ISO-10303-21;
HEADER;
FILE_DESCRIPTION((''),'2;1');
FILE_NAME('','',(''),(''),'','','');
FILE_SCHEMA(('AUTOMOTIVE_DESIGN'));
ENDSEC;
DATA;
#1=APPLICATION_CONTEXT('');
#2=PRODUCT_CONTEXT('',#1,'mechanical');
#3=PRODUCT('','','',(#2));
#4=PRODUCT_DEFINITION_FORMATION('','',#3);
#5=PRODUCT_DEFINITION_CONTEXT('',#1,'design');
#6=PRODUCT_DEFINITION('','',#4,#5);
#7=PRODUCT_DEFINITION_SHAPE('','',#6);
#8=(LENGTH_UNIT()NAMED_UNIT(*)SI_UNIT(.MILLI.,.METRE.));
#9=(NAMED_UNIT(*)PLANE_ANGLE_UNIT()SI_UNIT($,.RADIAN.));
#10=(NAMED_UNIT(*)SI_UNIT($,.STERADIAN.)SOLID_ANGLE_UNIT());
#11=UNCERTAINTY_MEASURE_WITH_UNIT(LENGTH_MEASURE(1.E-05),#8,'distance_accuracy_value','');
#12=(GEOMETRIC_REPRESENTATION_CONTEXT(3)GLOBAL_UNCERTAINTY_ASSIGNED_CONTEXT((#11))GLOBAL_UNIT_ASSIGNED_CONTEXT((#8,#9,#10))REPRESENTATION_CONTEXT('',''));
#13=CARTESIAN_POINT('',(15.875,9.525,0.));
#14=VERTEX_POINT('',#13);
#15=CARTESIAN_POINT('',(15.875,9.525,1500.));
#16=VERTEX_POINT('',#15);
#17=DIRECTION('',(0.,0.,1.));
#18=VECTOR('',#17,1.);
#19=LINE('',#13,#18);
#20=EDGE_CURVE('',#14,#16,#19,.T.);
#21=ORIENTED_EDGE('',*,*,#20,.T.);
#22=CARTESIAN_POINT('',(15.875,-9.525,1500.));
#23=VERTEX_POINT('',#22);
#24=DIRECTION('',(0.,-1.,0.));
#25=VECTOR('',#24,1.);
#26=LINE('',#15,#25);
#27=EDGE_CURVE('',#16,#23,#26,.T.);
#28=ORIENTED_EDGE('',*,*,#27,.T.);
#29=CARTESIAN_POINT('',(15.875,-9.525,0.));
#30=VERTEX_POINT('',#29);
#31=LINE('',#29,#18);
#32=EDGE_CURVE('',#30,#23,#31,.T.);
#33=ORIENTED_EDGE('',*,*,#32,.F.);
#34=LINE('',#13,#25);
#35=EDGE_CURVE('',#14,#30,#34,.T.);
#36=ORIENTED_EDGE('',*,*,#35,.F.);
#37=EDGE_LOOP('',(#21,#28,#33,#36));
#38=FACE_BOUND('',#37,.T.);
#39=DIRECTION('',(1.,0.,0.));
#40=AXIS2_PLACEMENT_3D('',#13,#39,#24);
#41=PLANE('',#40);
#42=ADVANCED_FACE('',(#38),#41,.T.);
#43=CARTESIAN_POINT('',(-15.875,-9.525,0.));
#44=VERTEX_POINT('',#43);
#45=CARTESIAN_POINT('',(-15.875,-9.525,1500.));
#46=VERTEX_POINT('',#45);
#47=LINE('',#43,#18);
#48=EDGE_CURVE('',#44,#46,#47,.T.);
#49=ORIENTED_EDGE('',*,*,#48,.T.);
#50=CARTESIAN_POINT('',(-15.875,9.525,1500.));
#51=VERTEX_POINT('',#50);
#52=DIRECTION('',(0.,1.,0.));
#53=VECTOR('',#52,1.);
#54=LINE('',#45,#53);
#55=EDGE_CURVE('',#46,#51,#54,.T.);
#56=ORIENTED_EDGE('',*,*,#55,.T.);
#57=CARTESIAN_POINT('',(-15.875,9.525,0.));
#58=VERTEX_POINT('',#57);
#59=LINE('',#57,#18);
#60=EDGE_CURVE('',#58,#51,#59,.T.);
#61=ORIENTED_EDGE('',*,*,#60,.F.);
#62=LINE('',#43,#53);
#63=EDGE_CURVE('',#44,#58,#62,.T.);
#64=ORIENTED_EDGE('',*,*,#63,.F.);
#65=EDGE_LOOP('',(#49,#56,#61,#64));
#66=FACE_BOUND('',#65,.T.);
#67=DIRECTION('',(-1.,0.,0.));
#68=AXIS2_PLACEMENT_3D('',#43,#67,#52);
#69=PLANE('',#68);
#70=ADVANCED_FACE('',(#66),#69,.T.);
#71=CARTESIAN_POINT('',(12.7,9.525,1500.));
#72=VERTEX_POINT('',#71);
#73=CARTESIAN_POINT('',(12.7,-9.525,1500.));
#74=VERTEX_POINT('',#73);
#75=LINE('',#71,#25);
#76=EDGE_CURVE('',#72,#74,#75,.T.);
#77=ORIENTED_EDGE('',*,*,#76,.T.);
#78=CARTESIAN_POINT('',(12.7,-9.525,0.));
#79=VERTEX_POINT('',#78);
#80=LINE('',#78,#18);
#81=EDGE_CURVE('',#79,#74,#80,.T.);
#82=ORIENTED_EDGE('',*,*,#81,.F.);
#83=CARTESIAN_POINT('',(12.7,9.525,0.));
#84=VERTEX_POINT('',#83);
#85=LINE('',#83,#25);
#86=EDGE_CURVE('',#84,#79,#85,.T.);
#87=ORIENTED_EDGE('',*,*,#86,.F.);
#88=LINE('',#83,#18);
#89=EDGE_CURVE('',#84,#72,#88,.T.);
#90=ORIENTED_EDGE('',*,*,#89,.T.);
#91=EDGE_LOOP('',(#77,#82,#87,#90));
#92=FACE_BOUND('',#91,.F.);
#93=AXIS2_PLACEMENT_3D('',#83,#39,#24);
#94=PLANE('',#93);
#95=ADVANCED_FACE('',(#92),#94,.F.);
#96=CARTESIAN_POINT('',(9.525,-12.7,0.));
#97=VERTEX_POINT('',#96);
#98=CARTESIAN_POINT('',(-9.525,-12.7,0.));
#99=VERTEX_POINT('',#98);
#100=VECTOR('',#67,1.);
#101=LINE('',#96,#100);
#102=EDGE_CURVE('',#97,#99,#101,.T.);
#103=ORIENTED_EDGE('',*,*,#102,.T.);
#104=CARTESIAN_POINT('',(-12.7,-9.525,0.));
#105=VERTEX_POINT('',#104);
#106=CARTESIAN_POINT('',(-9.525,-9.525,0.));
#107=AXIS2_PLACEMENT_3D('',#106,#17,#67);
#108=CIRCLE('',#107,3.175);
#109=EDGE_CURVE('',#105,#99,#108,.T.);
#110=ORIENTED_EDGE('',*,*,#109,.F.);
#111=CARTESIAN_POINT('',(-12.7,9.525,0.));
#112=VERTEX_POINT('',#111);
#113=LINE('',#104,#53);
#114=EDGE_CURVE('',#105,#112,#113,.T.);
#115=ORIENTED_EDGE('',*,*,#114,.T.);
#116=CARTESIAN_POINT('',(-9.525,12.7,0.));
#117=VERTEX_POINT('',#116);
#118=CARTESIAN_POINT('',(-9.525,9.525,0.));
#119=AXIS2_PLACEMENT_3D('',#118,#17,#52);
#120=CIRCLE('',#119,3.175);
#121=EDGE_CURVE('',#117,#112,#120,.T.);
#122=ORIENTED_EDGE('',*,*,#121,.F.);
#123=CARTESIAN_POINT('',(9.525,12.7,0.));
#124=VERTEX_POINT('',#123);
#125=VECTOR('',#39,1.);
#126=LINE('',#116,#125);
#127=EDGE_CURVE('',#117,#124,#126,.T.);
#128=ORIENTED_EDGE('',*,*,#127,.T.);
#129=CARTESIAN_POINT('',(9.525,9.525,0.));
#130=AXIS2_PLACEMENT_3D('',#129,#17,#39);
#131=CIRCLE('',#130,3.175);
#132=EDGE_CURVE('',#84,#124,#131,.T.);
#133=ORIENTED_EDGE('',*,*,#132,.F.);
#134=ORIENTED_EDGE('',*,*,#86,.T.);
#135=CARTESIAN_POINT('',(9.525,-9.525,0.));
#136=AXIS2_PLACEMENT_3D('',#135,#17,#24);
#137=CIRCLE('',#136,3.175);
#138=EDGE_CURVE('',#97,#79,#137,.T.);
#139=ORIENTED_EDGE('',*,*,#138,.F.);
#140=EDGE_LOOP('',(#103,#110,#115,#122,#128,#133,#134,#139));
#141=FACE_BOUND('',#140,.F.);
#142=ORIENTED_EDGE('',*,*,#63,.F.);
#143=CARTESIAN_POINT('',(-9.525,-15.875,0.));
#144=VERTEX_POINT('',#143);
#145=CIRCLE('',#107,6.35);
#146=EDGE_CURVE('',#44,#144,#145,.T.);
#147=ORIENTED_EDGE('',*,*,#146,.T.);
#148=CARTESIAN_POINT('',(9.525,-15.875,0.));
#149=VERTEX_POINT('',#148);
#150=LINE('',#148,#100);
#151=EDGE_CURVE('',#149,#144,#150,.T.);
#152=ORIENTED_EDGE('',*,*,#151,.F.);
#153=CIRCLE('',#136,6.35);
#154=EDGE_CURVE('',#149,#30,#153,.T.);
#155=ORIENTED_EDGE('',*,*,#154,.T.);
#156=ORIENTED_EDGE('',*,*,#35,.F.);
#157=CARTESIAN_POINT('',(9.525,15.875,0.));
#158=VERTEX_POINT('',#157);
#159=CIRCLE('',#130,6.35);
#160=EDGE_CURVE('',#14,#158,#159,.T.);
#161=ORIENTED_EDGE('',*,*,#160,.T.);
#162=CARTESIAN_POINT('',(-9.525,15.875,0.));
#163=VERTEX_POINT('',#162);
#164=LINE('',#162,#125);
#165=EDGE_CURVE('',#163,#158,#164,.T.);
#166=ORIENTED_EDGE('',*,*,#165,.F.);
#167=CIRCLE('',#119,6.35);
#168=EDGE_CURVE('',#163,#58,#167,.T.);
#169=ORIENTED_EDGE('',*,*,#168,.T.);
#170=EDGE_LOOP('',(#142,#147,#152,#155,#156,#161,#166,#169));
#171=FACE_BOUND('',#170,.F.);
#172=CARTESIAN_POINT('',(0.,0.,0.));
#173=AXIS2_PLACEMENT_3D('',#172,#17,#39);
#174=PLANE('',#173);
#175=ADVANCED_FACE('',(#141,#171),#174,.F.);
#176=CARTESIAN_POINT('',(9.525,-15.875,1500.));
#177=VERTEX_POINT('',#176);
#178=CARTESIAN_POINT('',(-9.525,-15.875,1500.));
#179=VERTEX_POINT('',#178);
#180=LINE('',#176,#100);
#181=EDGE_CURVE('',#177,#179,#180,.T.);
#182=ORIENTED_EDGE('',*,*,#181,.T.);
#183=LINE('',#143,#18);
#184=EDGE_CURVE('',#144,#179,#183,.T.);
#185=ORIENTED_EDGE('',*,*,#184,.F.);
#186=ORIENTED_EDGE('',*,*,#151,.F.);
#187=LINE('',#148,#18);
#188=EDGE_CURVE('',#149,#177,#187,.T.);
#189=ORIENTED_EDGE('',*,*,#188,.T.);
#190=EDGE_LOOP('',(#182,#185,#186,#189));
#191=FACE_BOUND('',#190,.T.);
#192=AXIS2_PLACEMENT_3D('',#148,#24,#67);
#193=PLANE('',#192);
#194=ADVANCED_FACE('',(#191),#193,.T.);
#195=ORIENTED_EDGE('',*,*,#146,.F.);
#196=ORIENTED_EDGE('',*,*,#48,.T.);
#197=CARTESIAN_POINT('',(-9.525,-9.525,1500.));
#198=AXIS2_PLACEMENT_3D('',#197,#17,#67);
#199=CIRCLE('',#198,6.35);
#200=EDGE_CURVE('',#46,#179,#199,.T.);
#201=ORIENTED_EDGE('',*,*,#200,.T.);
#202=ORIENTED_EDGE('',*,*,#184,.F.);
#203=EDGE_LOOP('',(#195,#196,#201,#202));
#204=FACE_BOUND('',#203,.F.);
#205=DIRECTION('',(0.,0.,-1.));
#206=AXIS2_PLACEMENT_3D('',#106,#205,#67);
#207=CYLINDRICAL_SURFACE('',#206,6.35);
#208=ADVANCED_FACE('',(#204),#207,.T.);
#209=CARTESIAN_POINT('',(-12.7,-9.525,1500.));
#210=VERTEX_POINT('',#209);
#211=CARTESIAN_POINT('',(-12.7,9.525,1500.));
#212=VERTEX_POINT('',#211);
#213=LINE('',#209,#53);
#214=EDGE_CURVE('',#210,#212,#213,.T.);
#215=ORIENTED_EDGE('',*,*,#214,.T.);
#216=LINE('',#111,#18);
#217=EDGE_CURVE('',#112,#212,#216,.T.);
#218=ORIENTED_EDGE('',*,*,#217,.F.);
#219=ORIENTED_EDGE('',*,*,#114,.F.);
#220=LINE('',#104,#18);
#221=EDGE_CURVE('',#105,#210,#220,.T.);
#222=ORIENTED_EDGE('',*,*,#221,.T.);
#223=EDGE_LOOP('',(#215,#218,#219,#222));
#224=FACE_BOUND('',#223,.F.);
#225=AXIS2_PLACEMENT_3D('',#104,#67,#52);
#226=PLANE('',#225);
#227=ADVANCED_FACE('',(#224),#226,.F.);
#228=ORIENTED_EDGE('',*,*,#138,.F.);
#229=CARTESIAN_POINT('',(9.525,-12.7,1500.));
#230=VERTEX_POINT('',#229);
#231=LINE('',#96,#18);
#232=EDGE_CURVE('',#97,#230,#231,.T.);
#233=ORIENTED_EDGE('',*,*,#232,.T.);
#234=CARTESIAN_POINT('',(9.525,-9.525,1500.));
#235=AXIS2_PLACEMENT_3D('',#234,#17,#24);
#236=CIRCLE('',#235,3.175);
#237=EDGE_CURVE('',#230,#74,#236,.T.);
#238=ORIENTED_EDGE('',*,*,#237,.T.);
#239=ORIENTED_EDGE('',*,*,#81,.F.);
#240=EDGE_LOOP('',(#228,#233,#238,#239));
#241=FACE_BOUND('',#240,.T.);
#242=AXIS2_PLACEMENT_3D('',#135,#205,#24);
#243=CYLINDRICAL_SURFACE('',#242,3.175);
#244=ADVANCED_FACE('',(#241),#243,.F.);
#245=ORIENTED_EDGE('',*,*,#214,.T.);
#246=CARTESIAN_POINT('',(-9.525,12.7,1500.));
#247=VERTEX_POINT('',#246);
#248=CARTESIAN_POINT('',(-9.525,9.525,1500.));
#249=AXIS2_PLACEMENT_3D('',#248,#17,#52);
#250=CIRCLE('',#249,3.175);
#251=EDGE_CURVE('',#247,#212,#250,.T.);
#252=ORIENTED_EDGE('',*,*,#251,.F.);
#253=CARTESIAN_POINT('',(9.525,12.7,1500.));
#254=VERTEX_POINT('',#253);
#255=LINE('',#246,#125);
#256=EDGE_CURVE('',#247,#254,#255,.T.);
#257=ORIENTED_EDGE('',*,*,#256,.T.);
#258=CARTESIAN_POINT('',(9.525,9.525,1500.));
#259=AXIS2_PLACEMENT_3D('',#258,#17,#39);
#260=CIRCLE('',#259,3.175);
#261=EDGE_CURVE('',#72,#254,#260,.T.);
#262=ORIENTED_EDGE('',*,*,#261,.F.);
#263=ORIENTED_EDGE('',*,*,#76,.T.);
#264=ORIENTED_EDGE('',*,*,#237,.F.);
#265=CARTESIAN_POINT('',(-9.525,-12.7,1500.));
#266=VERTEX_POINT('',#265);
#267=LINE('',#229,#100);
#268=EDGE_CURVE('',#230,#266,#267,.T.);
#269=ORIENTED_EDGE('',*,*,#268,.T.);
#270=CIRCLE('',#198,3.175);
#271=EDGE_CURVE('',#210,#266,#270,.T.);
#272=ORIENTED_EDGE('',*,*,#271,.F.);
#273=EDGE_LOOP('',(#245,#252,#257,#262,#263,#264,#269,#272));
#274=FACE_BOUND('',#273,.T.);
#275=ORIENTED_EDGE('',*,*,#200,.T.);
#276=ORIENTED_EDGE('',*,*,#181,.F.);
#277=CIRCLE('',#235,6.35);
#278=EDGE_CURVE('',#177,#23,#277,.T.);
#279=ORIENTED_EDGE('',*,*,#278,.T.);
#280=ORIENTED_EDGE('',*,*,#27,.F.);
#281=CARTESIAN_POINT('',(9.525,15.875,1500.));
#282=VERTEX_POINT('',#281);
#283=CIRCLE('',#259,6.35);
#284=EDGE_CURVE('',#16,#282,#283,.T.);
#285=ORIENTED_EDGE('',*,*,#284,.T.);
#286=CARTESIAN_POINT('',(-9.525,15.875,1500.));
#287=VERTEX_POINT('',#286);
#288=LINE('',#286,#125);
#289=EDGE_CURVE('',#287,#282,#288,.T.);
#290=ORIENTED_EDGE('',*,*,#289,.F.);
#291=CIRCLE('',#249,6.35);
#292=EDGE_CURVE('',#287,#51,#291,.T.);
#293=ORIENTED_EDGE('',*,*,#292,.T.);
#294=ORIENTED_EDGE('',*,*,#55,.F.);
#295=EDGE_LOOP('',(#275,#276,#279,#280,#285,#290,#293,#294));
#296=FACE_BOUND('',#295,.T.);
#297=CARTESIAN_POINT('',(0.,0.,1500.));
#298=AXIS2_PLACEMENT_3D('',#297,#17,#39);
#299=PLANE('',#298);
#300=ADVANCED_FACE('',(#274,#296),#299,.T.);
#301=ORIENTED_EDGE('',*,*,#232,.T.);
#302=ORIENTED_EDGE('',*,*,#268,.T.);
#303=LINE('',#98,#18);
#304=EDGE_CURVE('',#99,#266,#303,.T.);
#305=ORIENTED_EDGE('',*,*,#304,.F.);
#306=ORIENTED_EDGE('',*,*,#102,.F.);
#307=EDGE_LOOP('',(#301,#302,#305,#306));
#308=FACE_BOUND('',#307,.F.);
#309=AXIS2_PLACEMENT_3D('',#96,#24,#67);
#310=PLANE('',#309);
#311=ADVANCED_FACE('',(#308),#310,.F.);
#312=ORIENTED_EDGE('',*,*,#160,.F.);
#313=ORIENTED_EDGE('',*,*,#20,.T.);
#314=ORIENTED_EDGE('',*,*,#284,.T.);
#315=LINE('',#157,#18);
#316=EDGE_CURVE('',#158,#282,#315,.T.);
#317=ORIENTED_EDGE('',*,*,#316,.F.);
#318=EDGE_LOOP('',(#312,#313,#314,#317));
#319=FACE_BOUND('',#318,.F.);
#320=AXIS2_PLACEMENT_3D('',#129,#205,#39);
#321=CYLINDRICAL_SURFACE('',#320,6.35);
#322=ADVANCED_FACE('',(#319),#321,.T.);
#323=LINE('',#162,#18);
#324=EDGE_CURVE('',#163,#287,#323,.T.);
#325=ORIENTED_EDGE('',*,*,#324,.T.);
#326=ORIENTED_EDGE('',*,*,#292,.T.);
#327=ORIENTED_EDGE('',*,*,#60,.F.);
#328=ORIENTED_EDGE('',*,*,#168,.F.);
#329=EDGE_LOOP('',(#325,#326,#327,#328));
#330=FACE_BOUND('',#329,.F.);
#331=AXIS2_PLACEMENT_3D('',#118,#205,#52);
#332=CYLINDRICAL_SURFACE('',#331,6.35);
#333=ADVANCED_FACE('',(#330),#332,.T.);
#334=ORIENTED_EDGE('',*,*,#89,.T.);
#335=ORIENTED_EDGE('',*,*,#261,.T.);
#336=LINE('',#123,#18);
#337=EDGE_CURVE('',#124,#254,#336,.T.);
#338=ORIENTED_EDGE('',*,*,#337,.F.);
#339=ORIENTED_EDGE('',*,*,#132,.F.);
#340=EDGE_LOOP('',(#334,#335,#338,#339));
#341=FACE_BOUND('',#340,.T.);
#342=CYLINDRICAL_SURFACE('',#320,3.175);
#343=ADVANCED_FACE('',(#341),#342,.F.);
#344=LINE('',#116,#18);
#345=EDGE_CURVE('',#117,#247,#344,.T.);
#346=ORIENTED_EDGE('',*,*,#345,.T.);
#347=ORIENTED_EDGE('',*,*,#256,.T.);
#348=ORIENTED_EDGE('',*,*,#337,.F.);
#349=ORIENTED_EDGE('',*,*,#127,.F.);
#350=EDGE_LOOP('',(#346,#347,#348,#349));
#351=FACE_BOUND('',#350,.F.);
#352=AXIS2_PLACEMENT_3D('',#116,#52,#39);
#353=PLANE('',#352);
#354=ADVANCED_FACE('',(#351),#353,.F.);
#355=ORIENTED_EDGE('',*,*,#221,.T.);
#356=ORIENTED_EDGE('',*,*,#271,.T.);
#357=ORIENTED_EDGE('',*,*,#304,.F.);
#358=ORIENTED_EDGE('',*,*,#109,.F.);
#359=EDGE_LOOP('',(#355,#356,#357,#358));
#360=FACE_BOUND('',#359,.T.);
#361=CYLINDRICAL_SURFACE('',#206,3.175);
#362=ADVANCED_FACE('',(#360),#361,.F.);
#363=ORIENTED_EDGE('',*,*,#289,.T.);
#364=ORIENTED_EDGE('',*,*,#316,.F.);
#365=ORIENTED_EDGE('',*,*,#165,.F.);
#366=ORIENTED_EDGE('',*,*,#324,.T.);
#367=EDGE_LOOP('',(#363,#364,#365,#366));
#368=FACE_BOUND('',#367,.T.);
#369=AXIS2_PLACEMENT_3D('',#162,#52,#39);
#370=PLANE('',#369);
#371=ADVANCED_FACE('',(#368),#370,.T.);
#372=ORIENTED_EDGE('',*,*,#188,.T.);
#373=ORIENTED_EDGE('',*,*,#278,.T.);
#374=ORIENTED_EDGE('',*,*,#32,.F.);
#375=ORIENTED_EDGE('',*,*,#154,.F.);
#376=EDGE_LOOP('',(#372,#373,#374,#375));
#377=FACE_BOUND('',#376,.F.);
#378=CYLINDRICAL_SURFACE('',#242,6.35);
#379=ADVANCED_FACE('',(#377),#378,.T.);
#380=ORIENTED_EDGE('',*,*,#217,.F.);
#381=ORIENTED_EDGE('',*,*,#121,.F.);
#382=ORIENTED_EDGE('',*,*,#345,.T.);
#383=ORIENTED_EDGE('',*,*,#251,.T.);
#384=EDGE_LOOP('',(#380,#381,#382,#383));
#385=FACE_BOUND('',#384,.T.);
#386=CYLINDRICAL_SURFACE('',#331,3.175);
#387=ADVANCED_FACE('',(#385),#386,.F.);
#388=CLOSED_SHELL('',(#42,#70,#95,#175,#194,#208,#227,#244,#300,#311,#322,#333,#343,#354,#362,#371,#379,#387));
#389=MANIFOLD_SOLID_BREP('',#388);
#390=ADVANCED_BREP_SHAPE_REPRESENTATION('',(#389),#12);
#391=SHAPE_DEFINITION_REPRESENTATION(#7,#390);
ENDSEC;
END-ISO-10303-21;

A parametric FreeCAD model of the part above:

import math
import FreeCAD as App
import Part
import Sketcher
from FreeCAD import Vector
Q = App.Units.Quantity

doc = App.newDocument("Part")
body = doc.addObject("PartDesign::Body", "Body")

# Sketch on XY plane
sketch1 = body.newObject("Sketcher::SketchObject", "Sketch")
sketch1.AttachmentSupport = (doc.getObject("XY_Plane"), [""])
sketch1.MapMode = "FlatFace"
sketch1.addGeometry(Part.LineSegment(Vector(-15.9, 9.5, 0), Vector(-15.9, -9.5, 0)), False)
sketch1.addGeometry(Part.ArcOfCircle(Part.Circle(Vector(-9.5, -9.5, 0), Vector(0, 0, 1), 6.3), math.radians(180), math.radians(270)), False)
sketch1.addGeometry(Part.LineSegment(Vector(-9.5, -15.9, 0), Vector(9.5, -15.9, 0)), False)
sketch1.addGeometry(Part.ArcOfCircle(Part.Circle(Vector(9.5, -9.5, 0), Vector(0, 0, 1), 6.3), math.radians(-90), math.radians(0)), False)
sketch1.addGeometry(Part.LineSegment(Vector(15.9, -9.5, 0), Vector(15.9, 9.5, 0)), False)
sketch1.addGeometry(Part.ArcOfCircle(Part.Circle(Vector(9.5, 9.5, 0), Vector(0, 0, 1), 6.3), math.radians(0), math.radians(90)), False)
sketch1.addGeometry(Part.LineSegment(Vector(9.5, 15.9, 0), Vector(-9.5, 15.9, 0)), False)
sketch1.addGeometry(Part.ArcOfCircle(Part.Circle(Vector(-9.5, 9.5, 0), Vector(0, 0, 1), 6.3), math.radians(90), math.radians(180)), False)
sketch1.addGeometry(Part.ArcOfCircle(Part.Circle(Vector(-9.5, 9.5, 0), Vector(0, 0, 1), 3.2), math.radians(90), math.radians(180)), False)
sketch1.addGeometry(Part.LineSegment(Vector(-9.5, 12.7, 0), Vector(9.5, 12.7, 0)), False)
sketch1.addGeometry(Part.ArcOfCircle(Part.Circle(Vector(9.5, 9.5, 0), Vector(0, 0, 1), 3.2), math.radians(0), math.radians(90)), False)
sketch1.addGeometry(Part.LineSegment(Vector(12.7, 9.5, 0), Vector(12.7, -9.5, 0)), False)
sketch1.addGeometry(Part.ArcOfCircle(Part.Circle(Vector(9.5, -9.5, 0), Vector(0, 0, 1), 3.2), math.radians(-90), math.radians(0)), False)
sketch1.addGeometry(Part.LineSegment(Vector(9.5, -12.7, 0), Vector(-9.5, -12.7, 0)), False)
sketch1.addGeometry(Part.ArcOfCircle(Part.Circle(Vector(-9.5, -9.5, 0), Vector(0, 0, 1), 3.2), math.radians(180), math.radians(270)), False)
sketch1.addGeometry(Part.LineSegment(Vector(-12.7, -9.5, 0), Vector(-12.7, 9.5, 0)), False)
sketch1.addConstraint(Sketcher.Constraint("Tangent", 0, 2, 1, 1))
sketch1.addConstraint(Sketcher.Constraint("Tangent", 1, 2, 2, 1))
sketch1.addConstraint(Sketcher.Constraint("Tangent", 2, 2, 3, 1))
sketch1.addConstraint(Sketcher.Constraint("Tangent", 3, 2, 4, 1))
sketch1.addConstraint(Sketcher.Constraint("Tangent", 4, 2, 5, 1))
sketch1.addConstraint(Sketcher.Constraint("Tangent", 5, 2, 6, 1))
sketch1.addConstraint(Sketcher.Constraint("Tangent", 6, 2, 7, 1))
sketch1.addConstraint(Sketcher.Constraint("Tangent", 7, 2, 0, 1))
sketch1.addConstraint(Sketcher.Constraint("Tangent", 8, 1, 9, 1))
sketch1.addConstraint(Sketcher.Constraint("Tangent", 9, 2, 10, 2))
sketch1.addConstraint(Sketcher.Constraint("Tangent", 10, 1, 11, 1))
sketch1.addConstraint(Sketcher.Constraint("Tangent", 11, 2, 12, 2))
sketch1.addConstraint(Sketcher.Constraint("Tangent", 12, 1, 13, 1))
sketch1.addConstraint(Sketcher.Constraint("Tangent", 13, 2, 14, 2))
sketch1.addConstraint(Sketcher.Constraint("Tangent", 14, 1, 15, 1))
sketch1.addConstraint(Sketcher.Constraint("Tangent", 15, 2, 8, 2))
sketch1.addConstraint(Sketcher.Constraint("Vertical", 0))
sketch1.addConstraint(Sketcher.Constraint("Horizontal", 2))
sketch1.addConstraint(Sketcher.Constraint("Vertical", 4))
sketch1.addConstraint(Sketcher.Constraint("Horizontal", 6))
sketch1.addConstraint(Sketcher.Constraint("Horizontal", 9))
sketch1.addConstraint(Sketcher.Constraint("Vertical", 11))
sketch1.addConstraint(Sketcher.Constraint("Horizontal", 13))
sketch1.addConstraint(Sketcher.Constraint("Vertical", 15))
sketch1.addConstraint(Sketcher.Constraint("Coincident", 8, 3, 7, 3))
sketch1.addConstraint(Sketcher.Constraint("Coincident", 10, 3, 5, 3))
sketch1.addConstraint(Sketcher.Constraint("Coincident", 12, 3, 3, 3))
sketch1.addConstraint(Sketcher.Constraint("Equal", 1, 3))
sketch1.addConstraint(Sketcher.Constraint("Equal", 3, 5))
sketch1.addConstraint(Sketcher.Constraint("Equal", 5, 7))
sketch1.addConstraint(Sketcher.Constraint("Equal", 12, 14))
sketch1.addConstraint(Sketcher.Constraint("Symmetric", 1, 3, 5, 3, -1, 1))
sketch1.addConstraint(Sketcher.Constraint("Equal", 13, 0))
sketch1.addConstraint(Sketcher.Constraint("Radius", 1, Q("0.25 in")))
sketch1.addConstraint(Sketcher.Constraint("Radius", 8, Q("0.125 in")))
sketch1.addConstraint(Sketcher.Constraint("DistanceX", 0, 2, -1, 1, Q("0.625 in")))
pad1 = body.newObject("PartDesign::Pad", "Pad")
pad1.Profile = sketch1
pad1.Length = 1500

doc.recompute()
